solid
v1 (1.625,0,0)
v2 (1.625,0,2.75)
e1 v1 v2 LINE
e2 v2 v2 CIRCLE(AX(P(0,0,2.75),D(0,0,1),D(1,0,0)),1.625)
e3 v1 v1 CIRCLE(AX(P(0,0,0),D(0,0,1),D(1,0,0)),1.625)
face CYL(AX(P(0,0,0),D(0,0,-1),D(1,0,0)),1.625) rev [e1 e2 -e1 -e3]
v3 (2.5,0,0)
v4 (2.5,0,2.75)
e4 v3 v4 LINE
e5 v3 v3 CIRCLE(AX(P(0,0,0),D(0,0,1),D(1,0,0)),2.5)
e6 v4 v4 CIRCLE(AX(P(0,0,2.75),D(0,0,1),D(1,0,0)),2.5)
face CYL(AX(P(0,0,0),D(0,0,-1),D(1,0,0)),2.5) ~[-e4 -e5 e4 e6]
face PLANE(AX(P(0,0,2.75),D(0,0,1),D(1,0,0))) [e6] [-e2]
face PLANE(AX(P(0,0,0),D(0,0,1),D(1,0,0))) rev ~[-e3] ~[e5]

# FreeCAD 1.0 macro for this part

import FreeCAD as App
import Part
import Sketcher

V = App.Vector

doc = App.newDocument("Part")
body = doc.addObject("PartDesign::Body", "Body")

# Sketch on XY plane
sketch1 = body.newObject("Sketcher::SketchObject", "Sketch")
sketch1.AttachmentSupport = (doc.getObject("XY_Plane"), [""])
sketch1.MapMode = "FlatFace"
sketch1.addGeometry(Part.Circle(V(0, 0, 0), V(0, 0, 1), 2.5), False)
sketch1.addGeometry(Part.Circle(V(0, 0, 0), V(0, 0, 1), 1.6), False)
sketch1.addConstraint(Sketcher.Constraint("Coincident", 0, 3, -1, 1))
sketch1.addConstraint(Sketcher.Constraint("Coincident", 1, 3, -1, 1))
sketch1.addConstraint(Sketcher.Constraint("Diameter", 0, 5.0))
sketch1.addConstraint(Sketcher.Constraint("Diameter", 1, 3.25))
pad1 = body.newObject("PartDesign::Pad", "Pad")
pad1.Profile = sketch1
pad1.Length = 2.75

doc.recompute()
